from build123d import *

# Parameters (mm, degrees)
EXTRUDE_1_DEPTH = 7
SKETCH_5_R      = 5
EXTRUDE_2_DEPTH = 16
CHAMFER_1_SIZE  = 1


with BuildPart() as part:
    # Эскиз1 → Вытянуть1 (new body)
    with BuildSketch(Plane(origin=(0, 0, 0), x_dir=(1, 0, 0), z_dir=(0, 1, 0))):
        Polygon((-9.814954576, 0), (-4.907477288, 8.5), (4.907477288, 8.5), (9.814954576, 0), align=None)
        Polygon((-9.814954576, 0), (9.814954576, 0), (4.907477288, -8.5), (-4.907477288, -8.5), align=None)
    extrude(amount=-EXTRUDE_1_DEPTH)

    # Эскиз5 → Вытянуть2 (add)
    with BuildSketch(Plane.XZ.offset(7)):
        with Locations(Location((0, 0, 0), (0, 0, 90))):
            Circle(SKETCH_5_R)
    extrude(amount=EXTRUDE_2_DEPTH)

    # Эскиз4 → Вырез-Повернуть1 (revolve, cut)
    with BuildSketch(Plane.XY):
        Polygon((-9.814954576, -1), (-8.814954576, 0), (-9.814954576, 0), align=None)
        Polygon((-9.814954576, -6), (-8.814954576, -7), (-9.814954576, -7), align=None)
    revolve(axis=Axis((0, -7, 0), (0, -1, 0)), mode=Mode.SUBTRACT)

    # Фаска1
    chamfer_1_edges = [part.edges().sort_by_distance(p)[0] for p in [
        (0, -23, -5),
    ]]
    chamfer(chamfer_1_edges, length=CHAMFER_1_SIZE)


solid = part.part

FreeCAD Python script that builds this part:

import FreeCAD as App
import Part
import Sketcher

V = App.Vector
Q = App.Units.Quantity


def edges_at(feature, points):
    """Names of the edges that pass closest to the given points."""
    edges = feature.Shape.Edges
    near = lambda p: min(range(len(edges)), key=lambda i: edges[i].distToShape(Part.Vertex(*p))[0])
    return sorted({f"Edge{near(p) + 1}" for p in points})

doc = App.newDocument("Part")
body = doc.addObject("PartDesign::Body", "Body")

sketch1 = body.newObject("Sketcher::SketchObject", "Sketch")
sketch1.AttachmentSupport = (doc.getObject("XZ_Plane"), [""])
sketch1.MapMode = "FlatFace"
sketch1.addGeometry([
    Part.LineSegment(V(-5, -8, 0), V(-10, 0, 0)),
    Part.LineSegment(V(-10, 0, 0), V(-5, 8, 0)),
    Part.LineSegment(V(-5, 8, 0), V(5, 8, 0)),
    Part.LineSegment(V(5, 8, 0), V(10, 0, 0)),
    Part.LineSegment(V(10, 0, 0), V(5, -8, 0)),
    Part.LineSegment(V(5, -8, 0), V(-5, -8, 0)),
], False)
sketch1.addConstraint([
    Sketcher.Constraint("Coincident", 0, 2, 1, 1),
    Sketcher.Constraint("Coincident", 1, 2, 2, 1),
    Sketcher.Constraint("Coincident", 2, 2, 3, 1),
    Sketcher.Constraint("Coincident", 3, 2, 4, 1),
    Sketcher.Constraint("Coincident", 4, 2, 5, 1),
    Sketcher.Constraint("Coincident", 5, 2, 0, 1),
    Sketcher.Constraint("Horizontal", 2),
    Sketcher.Constraint("Horizontal", 5),
    Sketcher.Constraint("Symmetric", 0, 2, 3, 2, -1, 1),
    Sketcher.Constraint("Symmetric", 1, 2, 4, 2, -1, 1),
    Sketcher.Constraint("PointOnObject", 0, 2, -1),
    Sketcher.Constraint("Parallel", 0, 3),
    Sketcher.Constraint("Vertical", 2, 2, 4, 2),
    Sketcher.Constraint("Angle", 0, Q("120 deg")),
    Sketcher.Constraint("DistanceY", 4, 2, 2, 2, 17.0),
    Sketcher.Constraint("DistanceX", 2, 1, 2, 2, 9.814955),
])
pad1 = body.newObject("PartDesign::Pad", "Pad")
pad1.Profile = sketch1
pad1.Length = 7

sketch2 = body.newObject("Sketcher::SketchObject", "Sketch001")
sketch2.AttachmentSupport = (doc.getObject("XZ_Plane"), [""])
sketch2.MapMode = "FlatFace"
sketch2.AttachmentOffset = App.Placement(V(0, 0, 7), App.Rotation())
sketch2.addGeometry(Part.Circle(V(0, 0, 0), V(0, 0, 1), 5), False)
sketch2.addConstraint([
    Sketcher.Constraint("Coincident", 0, 3, -1, 1),
    Sketcher.Constraint("Diameter", 0, 10.0),
])
pad2 = body.newObject("PartDesign::Pad", "Pad001")
pad2.Profile = sketch2
pad2.Length = 16

sketch3 = body.newObject("Sketcher::SketchObject", "Sketch002")
sketch3.AttachmentSupport = (doc.getObject("XY_Plane"), [""])
sketch3.MapMode = "FlatFace"
sketch3.addGeometry([
    Part.LineSegment(V(-9.8, -1, 0), V(-8.8, 0, 0)),
    Part.LineSegment(V(-8.8, 0, 0), V(-9.8, 0, 0)),
    Part.LineSegment(V(-9.8, 0, 0), V(-9.8, -1, 0)),
    Part.LineSegment(V(-8.8, -7, 0), V(-9.8, -6, 0)),
    Part.LineSegment(V(-9.8, -6, 0), V(-9.8, -7, 0)),
    Part.LineSegment(V(-9.8, -7, 0), V(-8.8, -7, 0)),
], False)
sketch3.addConstraint([
    Sketcher.Constraint("Coincident", 0, 2, 1, 1),
    Sketcher.Constraint("Coincident", 1, 2, 2, 1),
    Sketcher.Constraint("Coincident", 2, 2, 0, 1),
    Sketcher.Constraint("Coincident", 3, 2, 4, 1),
    Sketcher.Constraint("Coincident", 4, 2, 5, 1),
    Sketcher.Constraint("Coincident", 5, 2, 3, 1),
    Sketcher.Constraint("Horizontal", 1),
    Sketcher.Constraint("Vertical", 2),
    Sketcher.Constraint("Vertical", 4),
    Sketcher.Constraint("Horizontal", 5),
    Sketcher.Constraint("PointOnObject", 0, 2, -1),
    Sketcher.Constraint("Perpendicular", 0, 3),
    Sketcher.Constraint("Vertical", 2, 2, 3, 2),
    Sketcher.Constraint("Vertical", 0, 2, 5, 2),
    Sketcher.Constraint("Equal", 5, 2),
    Sketcher.Constraint("DistanceX", 1, 2, 1, 1, 1.0),
    Sketcher.Constraint("DistanceY", 3, 2, -1, 1, 6.0),
    Sketcher.Constraint("DistanceX", 0, 2, -1, 1, 8.814955),
])
groove = body.newObject("PartDesign::Groove", "Groove")
groove.Profile = sketch3
groove.ReferenceAxis = (sketch3, ["V_Axis"])
groove.Angle = 360
doc.recompute()

chamfer = body.newObject("PartDesign::Chamfer", "Chamfer")
chamfer.Base = (groove, edges_at(groove, [(0, -23, -5)]))
chamfer.Size = 1

doc.recompute()
